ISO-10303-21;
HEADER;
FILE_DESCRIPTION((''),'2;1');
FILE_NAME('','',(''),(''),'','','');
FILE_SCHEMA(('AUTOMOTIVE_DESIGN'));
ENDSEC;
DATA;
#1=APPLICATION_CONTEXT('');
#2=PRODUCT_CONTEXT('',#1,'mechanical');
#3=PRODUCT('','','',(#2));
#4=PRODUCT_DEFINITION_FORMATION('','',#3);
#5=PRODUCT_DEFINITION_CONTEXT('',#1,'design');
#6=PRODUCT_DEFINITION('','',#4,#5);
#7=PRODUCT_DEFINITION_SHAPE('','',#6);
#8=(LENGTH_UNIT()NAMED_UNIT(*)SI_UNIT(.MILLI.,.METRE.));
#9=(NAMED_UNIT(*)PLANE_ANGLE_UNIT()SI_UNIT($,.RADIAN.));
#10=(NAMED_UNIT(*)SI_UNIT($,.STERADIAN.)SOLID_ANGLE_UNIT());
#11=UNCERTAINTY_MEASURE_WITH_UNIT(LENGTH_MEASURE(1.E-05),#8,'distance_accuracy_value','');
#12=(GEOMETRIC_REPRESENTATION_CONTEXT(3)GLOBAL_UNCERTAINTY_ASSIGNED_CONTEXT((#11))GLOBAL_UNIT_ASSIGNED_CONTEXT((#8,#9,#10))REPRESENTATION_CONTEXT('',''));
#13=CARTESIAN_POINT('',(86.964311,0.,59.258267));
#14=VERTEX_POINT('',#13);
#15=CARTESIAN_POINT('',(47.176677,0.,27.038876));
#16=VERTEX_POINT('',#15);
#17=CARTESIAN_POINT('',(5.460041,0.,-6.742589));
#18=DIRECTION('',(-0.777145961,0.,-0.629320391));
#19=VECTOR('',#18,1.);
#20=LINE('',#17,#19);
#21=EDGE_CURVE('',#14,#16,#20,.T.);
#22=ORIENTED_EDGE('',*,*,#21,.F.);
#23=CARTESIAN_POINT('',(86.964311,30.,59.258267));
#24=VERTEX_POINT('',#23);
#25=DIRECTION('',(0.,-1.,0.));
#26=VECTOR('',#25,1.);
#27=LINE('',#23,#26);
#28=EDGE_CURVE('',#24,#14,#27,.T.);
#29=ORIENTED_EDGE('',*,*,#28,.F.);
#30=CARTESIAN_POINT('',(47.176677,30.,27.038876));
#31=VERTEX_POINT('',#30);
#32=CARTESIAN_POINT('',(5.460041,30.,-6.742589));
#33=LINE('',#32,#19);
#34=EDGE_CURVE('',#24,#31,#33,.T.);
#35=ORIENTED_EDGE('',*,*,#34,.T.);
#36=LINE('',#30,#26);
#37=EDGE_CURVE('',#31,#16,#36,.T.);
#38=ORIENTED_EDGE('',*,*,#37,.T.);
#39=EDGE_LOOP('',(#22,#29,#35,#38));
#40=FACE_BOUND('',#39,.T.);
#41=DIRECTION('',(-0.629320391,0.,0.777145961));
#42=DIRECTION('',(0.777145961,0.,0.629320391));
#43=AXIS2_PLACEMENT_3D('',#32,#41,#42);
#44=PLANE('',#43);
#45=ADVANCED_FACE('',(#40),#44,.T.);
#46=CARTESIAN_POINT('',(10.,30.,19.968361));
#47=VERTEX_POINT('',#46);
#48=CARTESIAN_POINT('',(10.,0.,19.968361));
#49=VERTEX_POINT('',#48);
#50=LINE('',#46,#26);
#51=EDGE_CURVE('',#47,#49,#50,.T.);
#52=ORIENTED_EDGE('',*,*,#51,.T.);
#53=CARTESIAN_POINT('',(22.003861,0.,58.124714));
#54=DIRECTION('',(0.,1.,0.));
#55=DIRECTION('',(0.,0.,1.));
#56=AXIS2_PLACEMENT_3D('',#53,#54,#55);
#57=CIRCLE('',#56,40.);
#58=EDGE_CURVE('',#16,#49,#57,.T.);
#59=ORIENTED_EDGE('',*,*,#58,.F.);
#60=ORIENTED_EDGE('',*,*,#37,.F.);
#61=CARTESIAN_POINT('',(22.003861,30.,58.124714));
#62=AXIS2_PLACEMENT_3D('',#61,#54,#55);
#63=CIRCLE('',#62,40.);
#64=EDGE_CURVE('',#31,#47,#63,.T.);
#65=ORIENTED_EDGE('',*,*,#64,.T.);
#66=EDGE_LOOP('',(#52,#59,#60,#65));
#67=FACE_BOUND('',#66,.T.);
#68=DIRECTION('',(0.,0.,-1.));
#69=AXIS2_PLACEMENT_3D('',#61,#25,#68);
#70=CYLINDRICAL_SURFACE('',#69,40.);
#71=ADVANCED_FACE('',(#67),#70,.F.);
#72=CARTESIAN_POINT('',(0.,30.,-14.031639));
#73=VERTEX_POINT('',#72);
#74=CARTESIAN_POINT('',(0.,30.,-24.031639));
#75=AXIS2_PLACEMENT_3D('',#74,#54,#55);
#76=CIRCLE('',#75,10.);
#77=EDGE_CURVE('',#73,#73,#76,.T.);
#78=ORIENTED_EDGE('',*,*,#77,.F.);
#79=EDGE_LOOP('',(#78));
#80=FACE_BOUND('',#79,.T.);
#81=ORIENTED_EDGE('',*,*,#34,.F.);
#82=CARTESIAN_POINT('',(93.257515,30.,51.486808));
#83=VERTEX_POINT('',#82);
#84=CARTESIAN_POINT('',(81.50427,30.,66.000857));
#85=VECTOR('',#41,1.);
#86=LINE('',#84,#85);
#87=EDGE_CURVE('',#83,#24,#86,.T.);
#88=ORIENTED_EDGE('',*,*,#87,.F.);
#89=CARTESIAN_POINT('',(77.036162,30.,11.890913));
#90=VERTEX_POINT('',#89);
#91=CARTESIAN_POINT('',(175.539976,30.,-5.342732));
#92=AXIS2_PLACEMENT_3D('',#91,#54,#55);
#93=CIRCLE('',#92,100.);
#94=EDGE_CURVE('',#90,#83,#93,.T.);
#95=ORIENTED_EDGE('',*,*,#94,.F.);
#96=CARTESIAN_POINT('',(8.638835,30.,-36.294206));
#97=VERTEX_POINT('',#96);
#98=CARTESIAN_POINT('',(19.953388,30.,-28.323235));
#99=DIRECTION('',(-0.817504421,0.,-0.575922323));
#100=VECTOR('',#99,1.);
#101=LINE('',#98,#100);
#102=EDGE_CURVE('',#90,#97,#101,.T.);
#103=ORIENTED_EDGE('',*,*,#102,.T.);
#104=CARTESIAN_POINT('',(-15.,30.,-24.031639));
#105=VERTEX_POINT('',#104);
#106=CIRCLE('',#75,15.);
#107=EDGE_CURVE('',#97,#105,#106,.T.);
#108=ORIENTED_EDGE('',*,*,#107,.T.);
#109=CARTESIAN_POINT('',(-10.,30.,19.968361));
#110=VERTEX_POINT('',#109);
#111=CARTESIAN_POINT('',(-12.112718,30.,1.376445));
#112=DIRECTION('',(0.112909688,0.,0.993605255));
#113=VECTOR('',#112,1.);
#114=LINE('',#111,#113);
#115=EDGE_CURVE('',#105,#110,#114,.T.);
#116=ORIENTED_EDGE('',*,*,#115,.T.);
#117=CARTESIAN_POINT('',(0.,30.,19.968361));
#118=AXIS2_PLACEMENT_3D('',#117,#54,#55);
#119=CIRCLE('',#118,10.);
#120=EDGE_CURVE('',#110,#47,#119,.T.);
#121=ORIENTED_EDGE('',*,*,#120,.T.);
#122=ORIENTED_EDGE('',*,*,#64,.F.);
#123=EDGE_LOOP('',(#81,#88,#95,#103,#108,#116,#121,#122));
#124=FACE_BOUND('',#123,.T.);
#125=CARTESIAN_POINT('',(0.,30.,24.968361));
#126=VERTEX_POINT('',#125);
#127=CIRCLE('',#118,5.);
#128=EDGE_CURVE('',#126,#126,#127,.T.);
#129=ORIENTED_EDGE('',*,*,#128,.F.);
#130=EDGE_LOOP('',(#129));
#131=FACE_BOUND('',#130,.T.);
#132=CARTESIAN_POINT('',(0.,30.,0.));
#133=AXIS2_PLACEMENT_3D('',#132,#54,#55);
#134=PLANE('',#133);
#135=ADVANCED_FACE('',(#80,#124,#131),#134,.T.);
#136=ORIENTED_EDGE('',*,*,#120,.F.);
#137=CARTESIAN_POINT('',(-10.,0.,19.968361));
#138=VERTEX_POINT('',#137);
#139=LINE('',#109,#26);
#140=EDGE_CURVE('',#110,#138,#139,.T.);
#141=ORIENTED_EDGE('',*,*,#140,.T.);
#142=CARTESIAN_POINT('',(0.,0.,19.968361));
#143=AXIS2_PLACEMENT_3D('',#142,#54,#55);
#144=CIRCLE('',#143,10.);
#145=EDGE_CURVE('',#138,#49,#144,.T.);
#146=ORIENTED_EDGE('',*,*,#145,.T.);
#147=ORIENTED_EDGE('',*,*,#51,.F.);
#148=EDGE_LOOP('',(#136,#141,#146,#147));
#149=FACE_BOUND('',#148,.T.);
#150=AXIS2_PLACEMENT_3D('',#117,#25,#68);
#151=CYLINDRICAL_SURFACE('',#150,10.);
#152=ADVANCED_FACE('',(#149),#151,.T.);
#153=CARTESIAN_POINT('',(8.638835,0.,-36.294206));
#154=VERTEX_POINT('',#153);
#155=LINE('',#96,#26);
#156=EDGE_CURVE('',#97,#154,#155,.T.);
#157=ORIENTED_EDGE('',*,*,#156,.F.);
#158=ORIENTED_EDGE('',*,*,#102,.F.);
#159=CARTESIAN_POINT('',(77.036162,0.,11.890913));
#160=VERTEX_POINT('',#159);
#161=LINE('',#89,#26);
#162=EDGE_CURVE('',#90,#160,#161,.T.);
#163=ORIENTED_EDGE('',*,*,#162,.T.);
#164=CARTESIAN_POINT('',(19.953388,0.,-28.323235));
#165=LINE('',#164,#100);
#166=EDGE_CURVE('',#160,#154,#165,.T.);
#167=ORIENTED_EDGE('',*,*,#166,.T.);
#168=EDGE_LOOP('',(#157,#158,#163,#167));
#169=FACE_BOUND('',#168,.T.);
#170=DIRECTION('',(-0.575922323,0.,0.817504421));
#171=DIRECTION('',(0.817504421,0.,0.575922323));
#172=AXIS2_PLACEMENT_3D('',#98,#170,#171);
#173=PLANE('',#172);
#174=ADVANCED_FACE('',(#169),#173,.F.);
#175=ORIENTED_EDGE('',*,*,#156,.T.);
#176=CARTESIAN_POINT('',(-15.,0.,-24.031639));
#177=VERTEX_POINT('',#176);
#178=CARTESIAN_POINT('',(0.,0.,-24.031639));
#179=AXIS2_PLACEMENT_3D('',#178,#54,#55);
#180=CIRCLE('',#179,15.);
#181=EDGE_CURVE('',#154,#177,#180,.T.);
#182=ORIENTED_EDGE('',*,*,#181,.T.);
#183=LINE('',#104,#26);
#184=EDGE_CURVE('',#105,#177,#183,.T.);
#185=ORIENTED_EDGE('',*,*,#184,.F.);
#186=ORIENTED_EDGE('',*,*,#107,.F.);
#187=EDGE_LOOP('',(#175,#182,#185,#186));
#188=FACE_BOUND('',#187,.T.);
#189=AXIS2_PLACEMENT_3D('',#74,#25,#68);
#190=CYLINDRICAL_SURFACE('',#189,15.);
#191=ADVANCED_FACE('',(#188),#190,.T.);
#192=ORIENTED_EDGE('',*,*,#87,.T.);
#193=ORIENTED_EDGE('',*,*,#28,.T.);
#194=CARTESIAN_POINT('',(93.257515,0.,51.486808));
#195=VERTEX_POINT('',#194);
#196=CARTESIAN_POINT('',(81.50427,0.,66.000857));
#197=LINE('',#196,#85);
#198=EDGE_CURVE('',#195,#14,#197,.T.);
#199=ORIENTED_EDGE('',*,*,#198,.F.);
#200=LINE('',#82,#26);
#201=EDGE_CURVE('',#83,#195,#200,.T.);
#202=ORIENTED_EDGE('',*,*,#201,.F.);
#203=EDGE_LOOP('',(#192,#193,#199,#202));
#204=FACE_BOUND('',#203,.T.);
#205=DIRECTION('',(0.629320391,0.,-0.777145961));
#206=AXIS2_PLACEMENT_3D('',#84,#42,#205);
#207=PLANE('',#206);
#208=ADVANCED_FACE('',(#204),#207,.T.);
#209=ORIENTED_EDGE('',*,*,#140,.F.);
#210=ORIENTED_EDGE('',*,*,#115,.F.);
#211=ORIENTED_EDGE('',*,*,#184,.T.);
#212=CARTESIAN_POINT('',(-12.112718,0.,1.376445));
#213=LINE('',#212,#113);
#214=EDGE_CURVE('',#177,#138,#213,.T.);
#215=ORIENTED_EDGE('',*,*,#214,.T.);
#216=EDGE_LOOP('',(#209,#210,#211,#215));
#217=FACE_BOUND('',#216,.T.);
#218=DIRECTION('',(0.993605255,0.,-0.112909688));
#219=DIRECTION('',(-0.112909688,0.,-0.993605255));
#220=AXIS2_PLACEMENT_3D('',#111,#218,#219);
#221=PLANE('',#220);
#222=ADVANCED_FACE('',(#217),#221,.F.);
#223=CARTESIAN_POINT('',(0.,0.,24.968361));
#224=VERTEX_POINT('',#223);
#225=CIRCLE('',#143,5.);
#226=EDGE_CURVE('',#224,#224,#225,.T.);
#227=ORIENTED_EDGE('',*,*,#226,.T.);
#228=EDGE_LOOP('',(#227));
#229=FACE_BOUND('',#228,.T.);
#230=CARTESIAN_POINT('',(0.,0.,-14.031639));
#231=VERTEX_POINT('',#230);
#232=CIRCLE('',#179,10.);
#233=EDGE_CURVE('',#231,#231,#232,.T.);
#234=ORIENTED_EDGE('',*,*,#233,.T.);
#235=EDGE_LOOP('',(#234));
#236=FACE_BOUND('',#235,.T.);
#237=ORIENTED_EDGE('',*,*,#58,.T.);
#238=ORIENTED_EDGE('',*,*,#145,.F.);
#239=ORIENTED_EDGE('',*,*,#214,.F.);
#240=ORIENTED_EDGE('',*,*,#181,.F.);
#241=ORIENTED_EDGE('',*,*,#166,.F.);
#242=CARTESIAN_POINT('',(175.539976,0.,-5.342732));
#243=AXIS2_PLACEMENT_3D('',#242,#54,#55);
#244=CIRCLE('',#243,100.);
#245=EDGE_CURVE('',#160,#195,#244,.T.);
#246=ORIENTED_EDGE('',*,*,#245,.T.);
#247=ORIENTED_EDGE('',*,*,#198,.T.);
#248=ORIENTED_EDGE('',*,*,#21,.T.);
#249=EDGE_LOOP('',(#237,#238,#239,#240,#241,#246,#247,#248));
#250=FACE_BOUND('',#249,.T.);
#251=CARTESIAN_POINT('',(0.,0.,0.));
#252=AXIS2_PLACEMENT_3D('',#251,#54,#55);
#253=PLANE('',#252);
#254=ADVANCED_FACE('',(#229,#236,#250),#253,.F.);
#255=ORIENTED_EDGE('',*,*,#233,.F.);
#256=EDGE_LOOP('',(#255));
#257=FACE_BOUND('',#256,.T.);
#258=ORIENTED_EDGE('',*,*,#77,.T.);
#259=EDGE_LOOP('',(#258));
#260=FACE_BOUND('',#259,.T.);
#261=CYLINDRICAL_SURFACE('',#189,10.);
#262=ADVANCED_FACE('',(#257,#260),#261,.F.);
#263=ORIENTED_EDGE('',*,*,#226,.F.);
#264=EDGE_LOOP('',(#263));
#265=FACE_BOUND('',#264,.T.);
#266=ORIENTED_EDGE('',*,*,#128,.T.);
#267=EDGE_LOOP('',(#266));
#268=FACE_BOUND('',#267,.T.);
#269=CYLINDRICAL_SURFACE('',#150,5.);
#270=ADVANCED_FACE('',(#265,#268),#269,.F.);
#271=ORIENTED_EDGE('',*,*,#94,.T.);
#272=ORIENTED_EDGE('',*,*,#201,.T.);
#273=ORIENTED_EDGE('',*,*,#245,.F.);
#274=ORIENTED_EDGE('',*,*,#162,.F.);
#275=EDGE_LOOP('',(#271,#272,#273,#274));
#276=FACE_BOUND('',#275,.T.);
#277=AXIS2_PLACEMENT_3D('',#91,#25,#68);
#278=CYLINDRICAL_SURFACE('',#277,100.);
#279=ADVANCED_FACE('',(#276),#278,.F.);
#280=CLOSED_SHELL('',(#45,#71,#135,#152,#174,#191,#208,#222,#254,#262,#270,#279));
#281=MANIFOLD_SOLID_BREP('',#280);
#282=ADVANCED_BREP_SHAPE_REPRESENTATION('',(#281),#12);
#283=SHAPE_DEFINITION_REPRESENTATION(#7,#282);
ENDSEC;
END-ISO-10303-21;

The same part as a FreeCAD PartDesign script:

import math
import FreeCAD as App
import Part
import Sketcher
from FreeCAD import Vector
Q = App.Units.Quantity

doc = App.newDocument("Part")
body = doc.addObject("PartDesign::Body", "Body")

sketch1 = body.newObject("Sketcher::SketchObject", "Sketch")
sketch1.AttachmentSupport = (doc.getObject("XZ_Plane"), [""])
sketch1.MapMode = "FlatFace"
sketch1.addGeometry(Part.LineSegment(Vector(-15, -24.031639, 0), Vector(-10, 19.968361, 0)), False)
sketch1.addGeometry(Part.ArcOfCircle(Part.Circle(Vector(0, 19.968361, 0), Vector(0, 0, 1), 10), math.radians(0), math.radians(180)), False)
sketch1.addGeometry(Part.ArcOfCircle(Part.Circle(Vector(22.003861, 58.124714, 0), Vector(0, 0, 1), 40), math.radians(-107.463401), math.radians(-51)), False)
sketch1.addGeometry(Part.LineSegment(Vector(47.176677, 27.038876, 0), Vector(86.964311, 59.258267, 0)), False)
sketch1.addGeometry(Part.LineSegment(Vector(86.964311, 59.258267, 0), Vector(93.257515, 51.486808, 0)), False)
sketch1.addGeometry(Part.ArcOfCircle(Part.Circle(Vector(175.539976, -5.342732, 0), Vector(0, 0, 1), 100), math.radians(145.368556), math.radians(170.076307)), False)
sketch1.addGeometry(Part.LineSegment(Vector(77.036162, 11.890913, 0), Vector(8.638835, -36.294206, 0)), False)
sketch1.addGeometry(Part.ArcOfCircle(Part.Circle(Vector(0, -24.031639, 0), Vector(0, 0, 1), 15), math.radians(180), math.radians(305.164249)), False)
sketch1.addGeometry(Part.Circle(Vector(0, 19.968361, 0), Vector(0, 0, 1), 5), False)
sketch1.addGeometry(Part.Circle(Vector(0, -24.031639, 0), Vector(0, 0, 1), 10), False)
sketch1.addConstraint(Sketcher.Constraint("Coincident", 0, 2, 1, 2))
sketch1.addConstraint(Sketcher.Constraint("Coincident", 1, 1, 2, 1))
sketch1.addConstraint(Sketcher.Constraint("Tangent", 2, 2, 3, 1))
sketch1.addConstraint(Sketcher.Constraint("Coincident", 3, 2, 4, 1))
sketch1.addConstraint(Sketcher.Constraint("Coincident", 4, 2, 5, 1))
sketch1.addConstraint(Sketcher.Constraint("Coincident", 5, 2, 6, 1))
sketch1.addConstraint(Sketcher.Constraint("Tangent", 6, 2, 7, 2))
sketch1.addConstraint(Sketcher.Constraint("Coincident", 7, 1, 0, 1))
sketch1.addConstraint(Sketcher.Constraint("Coincident", 8, 3, 1, 3))
sketch1.addConstraint(Sketcher.Constraint("Coincident", 9, 3, 7, 3))
sketch1.addConstraint(Sketcher.Constraint("Equal", 1, 9))
sketch1.addConstraint(Sketcher.Constraint("Symmetric", 0, 2, 1, 1, -2))
sketch1.addConstraint(Sketcher.Constraint("PointOnObject", 7, 3, -2))
sketch1.addConstraint(Sketcher.Constraint("Perpendicular", 3, 4))
sketch1.addConstraint(Sketcher.Constraint("Horizontal", 8, 3, 0, 2))
sketch1.addConstraint(Sketcher.Constraint("Horizontal", 9, 3, 7, 1))
sketch1.addConstraint(Sketcher.Constraint("Diameter", 8, 10.0))
sketch1.addConstraint(Sketcher.Constraint("Diameter", 9, 20.0))
sketch1.addConstraint(Sketcher.Constraint("Radius", 2, 40.0))
sketch1.addConstraint(Sketcher.Constraint("Radius", 5, 100.0))
sketch1.addConstraint(Sketcher.Constraint("Radius", 7, 15.0))
sketch1.addConstraint(Sketcher.Constraint("Angle", 3, Q("39 deg")))
sketch1.addConstraint(Sketcher.Constraint("Distance", 4, 10.0))
sketch1.addConstraint(Sketcher.Constraint("DistanceY", 7, 3, 1, 3, 44.0))
sketch1.addConstraint(Sketcher.Constraint("DistanceX", 2, 3, 5, 2, 55.032301))
sketch1.addConstraint(Sketcher.Constraint("DistanceY", 5, 2, 2, 3, 46.233801))
sketch1.addConstraint(Sketcher.Constraint("Distance", 3, 51.19712))
sketch1.addConstraint(Sketcher.Constraint("DistanceY", -1, 1, 1, 3, 19.968361))
sketch1.addConstraint(Sketcher.Constraint("DistanceX", -1, 1, 2, 3, 22.003861))
pad1 = body.newObject("PartDesign::Pad", "Pad")
pad1.Profile = sketch1
pad1.Length = 30
pad1.Reversed = True

doc.recompute()
